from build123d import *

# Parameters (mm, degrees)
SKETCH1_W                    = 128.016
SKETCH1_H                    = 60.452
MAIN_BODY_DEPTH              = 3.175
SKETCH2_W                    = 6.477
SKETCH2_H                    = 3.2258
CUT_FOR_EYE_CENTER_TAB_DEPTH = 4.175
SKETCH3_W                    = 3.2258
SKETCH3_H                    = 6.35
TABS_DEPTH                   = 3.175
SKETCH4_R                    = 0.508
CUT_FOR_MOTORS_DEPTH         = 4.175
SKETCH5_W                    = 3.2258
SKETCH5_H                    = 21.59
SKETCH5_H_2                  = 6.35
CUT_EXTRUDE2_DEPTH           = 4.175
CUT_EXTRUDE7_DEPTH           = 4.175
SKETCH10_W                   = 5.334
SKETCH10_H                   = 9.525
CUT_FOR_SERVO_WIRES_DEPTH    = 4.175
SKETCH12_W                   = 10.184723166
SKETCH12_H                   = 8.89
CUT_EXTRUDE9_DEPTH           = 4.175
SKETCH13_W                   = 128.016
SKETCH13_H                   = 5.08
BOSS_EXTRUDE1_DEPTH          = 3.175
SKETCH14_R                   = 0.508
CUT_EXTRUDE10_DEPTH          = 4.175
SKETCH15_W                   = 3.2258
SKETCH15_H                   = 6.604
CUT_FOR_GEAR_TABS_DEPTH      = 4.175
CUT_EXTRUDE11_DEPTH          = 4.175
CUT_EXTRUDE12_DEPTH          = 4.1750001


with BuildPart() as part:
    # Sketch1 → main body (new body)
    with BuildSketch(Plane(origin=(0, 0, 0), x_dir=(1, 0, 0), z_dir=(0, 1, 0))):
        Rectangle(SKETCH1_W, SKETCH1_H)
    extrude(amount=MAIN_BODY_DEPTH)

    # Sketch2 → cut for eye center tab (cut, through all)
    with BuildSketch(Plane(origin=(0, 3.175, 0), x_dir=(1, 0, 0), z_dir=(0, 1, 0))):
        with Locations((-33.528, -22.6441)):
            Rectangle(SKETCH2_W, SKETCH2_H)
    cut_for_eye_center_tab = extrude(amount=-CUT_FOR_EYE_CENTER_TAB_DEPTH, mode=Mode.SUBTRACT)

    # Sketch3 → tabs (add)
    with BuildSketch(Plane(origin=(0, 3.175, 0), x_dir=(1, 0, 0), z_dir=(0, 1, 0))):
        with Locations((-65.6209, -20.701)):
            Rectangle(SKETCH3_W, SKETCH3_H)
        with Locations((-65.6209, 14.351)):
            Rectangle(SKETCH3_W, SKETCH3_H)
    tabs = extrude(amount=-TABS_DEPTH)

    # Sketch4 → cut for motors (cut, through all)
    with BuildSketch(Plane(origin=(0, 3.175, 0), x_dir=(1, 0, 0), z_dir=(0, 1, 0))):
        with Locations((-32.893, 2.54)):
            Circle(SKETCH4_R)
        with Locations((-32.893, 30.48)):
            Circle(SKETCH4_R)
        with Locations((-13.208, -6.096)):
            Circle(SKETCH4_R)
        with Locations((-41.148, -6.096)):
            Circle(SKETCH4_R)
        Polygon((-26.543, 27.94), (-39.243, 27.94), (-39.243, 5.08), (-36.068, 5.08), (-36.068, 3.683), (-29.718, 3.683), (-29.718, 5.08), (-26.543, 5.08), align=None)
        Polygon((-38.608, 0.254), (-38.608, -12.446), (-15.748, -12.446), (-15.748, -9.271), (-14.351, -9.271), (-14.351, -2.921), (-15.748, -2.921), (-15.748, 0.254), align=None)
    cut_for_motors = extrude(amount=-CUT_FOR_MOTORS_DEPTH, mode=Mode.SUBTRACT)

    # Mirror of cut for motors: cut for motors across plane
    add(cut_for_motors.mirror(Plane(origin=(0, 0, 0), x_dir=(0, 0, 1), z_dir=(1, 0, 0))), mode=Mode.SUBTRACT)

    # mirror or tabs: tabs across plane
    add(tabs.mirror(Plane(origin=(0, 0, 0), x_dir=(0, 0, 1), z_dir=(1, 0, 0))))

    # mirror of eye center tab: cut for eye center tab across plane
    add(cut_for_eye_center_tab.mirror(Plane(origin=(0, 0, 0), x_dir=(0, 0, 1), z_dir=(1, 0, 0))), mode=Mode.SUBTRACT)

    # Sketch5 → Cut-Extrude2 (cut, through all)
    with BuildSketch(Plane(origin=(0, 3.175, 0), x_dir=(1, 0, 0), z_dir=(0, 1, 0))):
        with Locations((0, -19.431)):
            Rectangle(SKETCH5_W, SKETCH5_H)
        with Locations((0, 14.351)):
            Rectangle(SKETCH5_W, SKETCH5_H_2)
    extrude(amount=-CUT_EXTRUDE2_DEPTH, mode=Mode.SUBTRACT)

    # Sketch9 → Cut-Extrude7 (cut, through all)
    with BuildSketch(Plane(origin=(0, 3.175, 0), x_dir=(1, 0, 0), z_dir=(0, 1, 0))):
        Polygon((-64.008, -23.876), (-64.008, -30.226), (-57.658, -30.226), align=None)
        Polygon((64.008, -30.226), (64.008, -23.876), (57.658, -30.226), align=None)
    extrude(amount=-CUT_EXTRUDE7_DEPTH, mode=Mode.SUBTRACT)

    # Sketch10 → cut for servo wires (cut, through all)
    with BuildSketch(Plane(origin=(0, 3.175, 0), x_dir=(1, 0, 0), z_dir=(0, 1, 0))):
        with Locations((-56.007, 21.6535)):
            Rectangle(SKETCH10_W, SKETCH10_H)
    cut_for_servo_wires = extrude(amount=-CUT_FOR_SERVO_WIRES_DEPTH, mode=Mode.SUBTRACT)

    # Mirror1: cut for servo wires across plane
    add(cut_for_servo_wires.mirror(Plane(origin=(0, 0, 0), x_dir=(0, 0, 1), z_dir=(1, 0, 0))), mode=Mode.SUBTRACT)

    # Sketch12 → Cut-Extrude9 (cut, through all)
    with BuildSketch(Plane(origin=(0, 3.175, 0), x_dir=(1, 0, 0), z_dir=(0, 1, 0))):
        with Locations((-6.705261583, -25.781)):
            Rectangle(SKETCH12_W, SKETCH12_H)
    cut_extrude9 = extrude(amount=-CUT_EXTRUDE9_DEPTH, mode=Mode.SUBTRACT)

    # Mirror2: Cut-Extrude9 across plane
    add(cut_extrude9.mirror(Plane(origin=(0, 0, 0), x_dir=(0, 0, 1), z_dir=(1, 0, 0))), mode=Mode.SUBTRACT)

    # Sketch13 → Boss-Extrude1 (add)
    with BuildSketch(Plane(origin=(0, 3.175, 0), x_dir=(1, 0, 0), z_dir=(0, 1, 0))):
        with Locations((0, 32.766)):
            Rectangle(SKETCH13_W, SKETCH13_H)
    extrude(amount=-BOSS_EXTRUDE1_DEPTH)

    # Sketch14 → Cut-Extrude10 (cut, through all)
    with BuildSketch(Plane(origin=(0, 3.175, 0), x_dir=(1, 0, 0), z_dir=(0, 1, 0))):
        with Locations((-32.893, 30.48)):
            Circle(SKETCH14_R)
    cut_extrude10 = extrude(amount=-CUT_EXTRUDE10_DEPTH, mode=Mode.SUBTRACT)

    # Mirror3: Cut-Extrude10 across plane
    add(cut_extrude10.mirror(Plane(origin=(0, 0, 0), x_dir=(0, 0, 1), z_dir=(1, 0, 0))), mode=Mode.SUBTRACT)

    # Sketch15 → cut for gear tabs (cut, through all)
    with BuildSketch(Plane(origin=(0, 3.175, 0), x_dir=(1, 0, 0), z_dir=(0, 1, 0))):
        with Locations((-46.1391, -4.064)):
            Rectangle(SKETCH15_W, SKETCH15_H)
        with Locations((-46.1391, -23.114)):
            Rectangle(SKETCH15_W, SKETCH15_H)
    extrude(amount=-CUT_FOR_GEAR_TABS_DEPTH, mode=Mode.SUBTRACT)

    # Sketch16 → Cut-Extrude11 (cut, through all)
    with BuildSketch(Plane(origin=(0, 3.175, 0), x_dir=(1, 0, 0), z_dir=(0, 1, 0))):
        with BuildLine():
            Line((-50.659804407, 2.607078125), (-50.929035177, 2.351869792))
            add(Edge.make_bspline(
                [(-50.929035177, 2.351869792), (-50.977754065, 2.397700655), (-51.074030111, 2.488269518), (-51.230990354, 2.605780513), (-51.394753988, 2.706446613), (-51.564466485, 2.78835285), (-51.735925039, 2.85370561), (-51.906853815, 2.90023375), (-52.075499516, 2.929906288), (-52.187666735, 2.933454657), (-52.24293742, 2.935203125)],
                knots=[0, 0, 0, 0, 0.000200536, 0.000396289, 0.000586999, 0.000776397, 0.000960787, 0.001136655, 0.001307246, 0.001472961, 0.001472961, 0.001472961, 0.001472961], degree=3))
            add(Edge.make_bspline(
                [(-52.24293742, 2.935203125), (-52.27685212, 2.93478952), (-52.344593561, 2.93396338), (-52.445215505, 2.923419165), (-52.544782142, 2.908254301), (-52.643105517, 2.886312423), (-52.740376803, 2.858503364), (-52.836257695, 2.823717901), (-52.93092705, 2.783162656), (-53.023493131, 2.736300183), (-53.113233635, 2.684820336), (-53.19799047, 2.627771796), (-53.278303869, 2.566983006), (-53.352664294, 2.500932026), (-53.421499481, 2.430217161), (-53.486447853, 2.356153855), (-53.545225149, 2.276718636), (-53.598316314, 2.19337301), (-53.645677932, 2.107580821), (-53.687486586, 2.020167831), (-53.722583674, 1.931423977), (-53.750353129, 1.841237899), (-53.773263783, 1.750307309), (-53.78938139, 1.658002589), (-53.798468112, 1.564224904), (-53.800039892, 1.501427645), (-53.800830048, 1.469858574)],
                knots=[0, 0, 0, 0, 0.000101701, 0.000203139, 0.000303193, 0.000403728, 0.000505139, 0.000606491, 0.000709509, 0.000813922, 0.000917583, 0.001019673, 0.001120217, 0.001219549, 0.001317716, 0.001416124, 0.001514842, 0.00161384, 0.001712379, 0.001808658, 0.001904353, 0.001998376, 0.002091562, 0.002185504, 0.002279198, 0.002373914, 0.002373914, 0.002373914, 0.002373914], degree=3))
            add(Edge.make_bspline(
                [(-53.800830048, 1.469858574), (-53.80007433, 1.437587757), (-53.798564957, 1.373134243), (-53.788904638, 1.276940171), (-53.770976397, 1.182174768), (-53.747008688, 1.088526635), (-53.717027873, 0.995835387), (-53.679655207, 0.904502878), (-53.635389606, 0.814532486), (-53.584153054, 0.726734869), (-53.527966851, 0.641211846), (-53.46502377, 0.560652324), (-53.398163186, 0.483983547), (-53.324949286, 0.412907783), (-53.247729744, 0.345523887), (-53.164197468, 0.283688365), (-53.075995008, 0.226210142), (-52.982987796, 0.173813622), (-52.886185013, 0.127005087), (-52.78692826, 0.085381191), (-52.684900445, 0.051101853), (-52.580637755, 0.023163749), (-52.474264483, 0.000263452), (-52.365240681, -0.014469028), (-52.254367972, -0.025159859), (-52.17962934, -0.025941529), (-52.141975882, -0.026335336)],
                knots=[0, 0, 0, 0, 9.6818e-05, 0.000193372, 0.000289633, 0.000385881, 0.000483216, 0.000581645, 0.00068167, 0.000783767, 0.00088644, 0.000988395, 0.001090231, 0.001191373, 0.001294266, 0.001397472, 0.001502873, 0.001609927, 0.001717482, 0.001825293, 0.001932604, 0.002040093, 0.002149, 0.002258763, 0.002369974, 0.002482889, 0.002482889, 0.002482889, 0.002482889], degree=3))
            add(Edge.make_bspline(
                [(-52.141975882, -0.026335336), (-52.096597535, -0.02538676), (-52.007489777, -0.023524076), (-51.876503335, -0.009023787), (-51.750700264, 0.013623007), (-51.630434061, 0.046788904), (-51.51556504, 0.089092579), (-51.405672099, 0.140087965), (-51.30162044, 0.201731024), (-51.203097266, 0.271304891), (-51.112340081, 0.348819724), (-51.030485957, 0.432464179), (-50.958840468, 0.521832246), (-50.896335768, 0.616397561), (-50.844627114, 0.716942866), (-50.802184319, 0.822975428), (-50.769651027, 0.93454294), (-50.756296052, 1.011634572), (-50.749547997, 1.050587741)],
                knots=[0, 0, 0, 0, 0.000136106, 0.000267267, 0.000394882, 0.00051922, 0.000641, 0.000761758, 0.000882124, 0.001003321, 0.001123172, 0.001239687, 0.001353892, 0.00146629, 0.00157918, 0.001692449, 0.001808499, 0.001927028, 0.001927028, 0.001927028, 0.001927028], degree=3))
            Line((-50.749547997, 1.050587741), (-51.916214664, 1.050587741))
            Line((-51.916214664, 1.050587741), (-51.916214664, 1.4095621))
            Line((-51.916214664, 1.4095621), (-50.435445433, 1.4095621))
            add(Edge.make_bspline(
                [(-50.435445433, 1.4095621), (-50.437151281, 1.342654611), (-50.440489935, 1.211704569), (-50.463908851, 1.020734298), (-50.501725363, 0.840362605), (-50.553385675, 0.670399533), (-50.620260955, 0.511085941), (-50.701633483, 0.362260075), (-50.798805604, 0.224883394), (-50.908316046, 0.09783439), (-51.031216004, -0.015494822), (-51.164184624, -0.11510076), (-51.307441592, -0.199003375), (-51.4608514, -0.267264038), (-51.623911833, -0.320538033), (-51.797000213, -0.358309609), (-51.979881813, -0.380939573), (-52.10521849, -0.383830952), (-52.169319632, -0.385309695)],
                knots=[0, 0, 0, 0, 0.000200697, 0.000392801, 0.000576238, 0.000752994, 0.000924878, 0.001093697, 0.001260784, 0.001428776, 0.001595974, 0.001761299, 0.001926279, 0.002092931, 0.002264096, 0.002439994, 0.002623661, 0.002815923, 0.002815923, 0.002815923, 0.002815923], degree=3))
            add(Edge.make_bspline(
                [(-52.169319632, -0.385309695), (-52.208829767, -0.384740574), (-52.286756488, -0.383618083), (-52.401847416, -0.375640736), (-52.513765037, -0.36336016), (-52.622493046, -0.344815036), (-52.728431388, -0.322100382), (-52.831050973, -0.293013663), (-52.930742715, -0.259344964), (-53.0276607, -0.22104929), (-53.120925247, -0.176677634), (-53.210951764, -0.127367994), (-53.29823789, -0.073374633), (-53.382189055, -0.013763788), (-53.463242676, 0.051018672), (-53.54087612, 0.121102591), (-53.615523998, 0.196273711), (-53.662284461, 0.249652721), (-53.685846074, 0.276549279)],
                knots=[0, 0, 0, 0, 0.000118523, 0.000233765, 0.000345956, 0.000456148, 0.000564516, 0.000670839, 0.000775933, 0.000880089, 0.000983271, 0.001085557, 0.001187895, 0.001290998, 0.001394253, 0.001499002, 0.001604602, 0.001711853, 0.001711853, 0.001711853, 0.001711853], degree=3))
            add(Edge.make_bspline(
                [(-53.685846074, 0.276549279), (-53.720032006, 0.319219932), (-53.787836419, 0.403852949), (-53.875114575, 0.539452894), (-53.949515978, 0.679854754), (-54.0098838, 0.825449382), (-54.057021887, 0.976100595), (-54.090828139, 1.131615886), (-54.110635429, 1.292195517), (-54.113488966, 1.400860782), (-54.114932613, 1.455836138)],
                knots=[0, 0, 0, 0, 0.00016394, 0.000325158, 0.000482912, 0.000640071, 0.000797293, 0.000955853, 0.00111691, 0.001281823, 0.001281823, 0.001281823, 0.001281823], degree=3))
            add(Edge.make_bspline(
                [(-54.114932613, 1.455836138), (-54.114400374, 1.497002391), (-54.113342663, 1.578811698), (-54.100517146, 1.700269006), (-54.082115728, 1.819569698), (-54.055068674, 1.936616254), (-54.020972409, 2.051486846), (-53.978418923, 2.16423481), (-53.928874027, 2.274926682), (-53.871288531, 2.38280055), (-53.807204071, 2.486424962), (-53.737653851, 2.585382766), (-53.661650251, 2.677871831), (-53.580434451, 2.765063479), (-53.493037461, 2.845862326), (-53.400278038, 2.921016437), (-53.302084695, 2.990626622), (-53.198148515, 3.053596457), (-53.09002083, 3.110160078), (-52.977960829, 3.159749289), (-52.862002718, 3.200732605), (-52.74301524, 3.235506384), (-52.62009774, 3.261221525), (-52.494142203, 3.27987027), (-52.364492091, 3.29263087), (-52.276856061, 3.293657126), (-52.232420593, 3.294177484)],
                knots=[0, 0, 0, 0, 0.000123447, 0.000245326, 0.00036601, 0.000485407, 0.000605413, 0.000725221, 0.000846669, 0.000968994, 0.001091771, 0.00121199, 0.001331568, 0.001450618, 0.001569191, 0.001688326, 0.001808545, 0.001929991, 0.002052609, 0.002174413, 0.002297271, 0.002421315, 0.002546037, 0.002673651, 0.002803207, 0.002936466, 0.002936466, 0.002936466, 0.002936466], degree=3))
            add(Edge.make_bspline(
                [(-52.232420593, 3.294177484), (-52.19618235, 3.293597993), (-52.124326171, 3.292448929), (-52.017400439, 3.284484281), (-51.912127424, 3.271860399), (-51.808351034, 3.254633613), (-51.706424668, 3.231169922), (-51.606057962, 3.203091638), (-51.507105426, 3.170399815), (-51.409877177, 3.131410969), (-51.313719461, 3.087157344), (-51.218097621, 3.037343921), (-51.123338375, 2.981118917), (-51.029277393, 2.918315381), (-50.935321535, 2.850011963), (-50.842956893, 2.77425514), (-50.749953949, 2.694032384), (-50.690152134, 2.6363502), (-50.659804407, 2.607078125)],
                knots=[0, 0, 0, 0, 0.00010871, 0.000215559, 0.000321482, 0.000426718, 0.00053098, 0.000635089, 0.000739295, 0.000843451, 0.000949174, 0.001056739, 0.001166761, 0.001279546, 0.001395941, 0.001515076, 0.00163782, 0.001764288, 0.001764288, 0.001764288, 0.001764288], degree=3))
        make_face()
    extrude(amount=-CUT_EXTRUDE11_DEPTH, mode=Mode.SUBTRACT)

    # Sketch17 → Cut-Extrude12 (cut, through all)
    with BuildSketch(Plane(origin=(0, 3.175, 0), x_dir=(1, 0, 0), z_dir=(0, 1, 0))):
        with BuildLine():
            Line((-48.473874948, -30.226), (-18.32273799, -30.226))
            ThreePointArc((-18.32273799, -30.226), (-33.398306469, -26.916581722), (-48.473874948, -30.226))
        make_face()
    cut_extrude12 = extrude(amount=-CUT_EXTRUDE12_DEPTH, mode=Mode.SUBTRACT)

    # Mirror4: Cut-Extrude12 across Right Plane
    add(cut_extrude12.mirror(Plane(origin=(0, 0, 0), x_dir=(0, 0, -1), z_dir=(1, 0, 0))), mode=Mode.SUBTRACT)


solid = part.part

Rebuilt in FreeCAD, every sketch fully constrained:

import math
import FreeCAD as App
import Part
import Sketcher
from FreeCAD import Vector
Q = App.Units.Quantity


def add_polygon(sketch, points):
    """Adds a closed chain of lines whose ends are joined by coincident constraints."""
    first, n = sketch.GeometryCount, len(points)
    for a, b in zip(points, points[1:] + points[:1]):
        sketch.addGeometry(Part.LineSegment(App.Vector(*a, 0), App.Vector(*b, 0)), False)
    for i in range(n):
        sketch.addConstraint(Sketcher.Constraint("Coincident", first + i, 2, first + (i + 1) % n, 1))

doc = App.newDocument("Part")
params = doc.addObject("Spreadsheet::Sheet", "Params")
for row, (alias, value) in enumerate([
    ("sketch1_width", "5.04 in"),
    ("sketch1_height", "2.38 in"),
    ("pad1_length", "0.125 in"),
    ("sketch2_width", "0.255 in"),
    ("sketch2_height", "0.127 in"),
    ("sketch3_height", "0.25 in"),
    ("sketch3_width", "0.127 in"),
    ("pad2_length", "0.125 in"),
    ("sketch4_diameter", "0.04 in"),
    ("sketch4_width", "0.5 in"),
    ("sketch4_width2", "0.9 in"),
    ("sketch4_width3", "0.25 in"),
    ("sketch4_width4", "0.055 in"),
    ("sketch5_height", "0.85 in"),
    ("sketch5_height2", "0.25 in"),
    ("sketch5_width", "0.127 in"),
    ("sketch6_width", "0.25 in"),
    ("sketch7_width", "0.21 in"),
    ("sketch7_height", "0.375 in"),
    ("sketch8_height", "0.35 in"),
    ("sketch9_height", "0.2 in"),
    ("sketch9_width", "5.04 in"),
    ("pad3_length", "0.125 in"),
    ("sketch10_diameter", "0.04 in"),
    ("sketch11_height", "0.26 in"),
    ("sketch11_width", "0.127 in"),
], start=1):
    params.set(f"A{row}", alias)
    params.set(f"B{row}", "=" + value)
    params.setAlias(f"B{row}", alias)

body = doc.addObject("PartDesign::Body", "Body")

sketch1 = body.newObject("Sketcher::SketchObject", "Sketch")
sketch1.AttachmentSupport = (doc.getObject("XZ_Plane"), [""])
sketch1.MapMode = "FlatFace"
add_polygon(sketch1, [(-64, -30), (-64, 30), (64, 30), (64, -30)])
sketch1.addConstraint(Sketcher.Constraint("Vertical", 0))
sketch1.addConstraint(Sketcher.Constraint("Horizontal", 1))
sketch1.addConstraint(Sketcher.Constraint("Vertical", 2))
sketch1.addConstraint(Sketcher.Constraint("Horizontal", 3))
sketch1.addConstraint(Sketcher.Constraint("Symmetric", 0, 2, 2, 2, -1, 1))
sketch1.addConstraint(Sketcher.Constraint("DistanceX", 1, 1, 1, 2, Q("5.04 in")))
sketch1.addConstraint(Sketcher.Constraint("DistanceY", 0, 1, 0, 2, Q("2.38 in")))
sketch1.setExpression("Constraints[9]", "Params.sketch1_width")
sketch1.setExpression("Constraints[10]", "Params.sketch1_height")
pad1 = body.newObject("PartDesign::Pad", "Pad")
pad1.Profile = sketch1
pad1.setExpression("Length", "Params.pad1_length")
pad1.Reversed = True

sketch2 = body.newObject("Sketcher::SketchObject", "Sketch001")
sketch2.AttachmentSupport = (doc.getObject("XZ_Plane"), [""])
sketch2.MapMode = "FlatFace"
sketch2.AttachmentOffset = App.Placement(Vector(0, 0, -0.125 * 25.4), App.Rotation())
add_polygon(sketch2, [(-36.8, 21), (-36.8, 24.3), (-30.3, 24.3), (-30.3, 21)])
sketch2.addConstraint(Sketcher.Constraint("Vertical", 0))
sketch2.addConstraint(Sketcher.Constraint("Horizontal", 1))
sketch2.addConstraint(Sketcher.Constraint("Vertical", 2))
sketch2.addConstraint(Sketcher.Constraint("Horizontal", 3))
sketch2.addConstraint(Sketcher.Constraint("DistanceX", 1, 1, 1, 2, Q("0.255 in")))
sketch2.addConstraint(Sketcher.Constraint("DistanceY", 0, 1, 0, 2, Q("0.127 in")))
sketch2.addConstraint(Sketcher.Constraint("DistanceY", -1, 1, 0, 2, Q("0.955 in")))
sketch2.addConstraint(Sketcher.Constraint("DistanceX", 0, 2, -1, 1, Q("1.4475 in")))
sketch2.setExpression("Constraints[8]", "Params.sketch2_width")
sketch2.setExpression("Constraints[9]", "Params.sketch2_height")
pocket1 = body.newObject("PartDesign::Pocket", "Pocket")
pocket1.Profile = sketch2
pocket1.Type = "ThroughAll"
pocket1.Reversed = True

sketch3 = body.newObject("Sketcher::SketchObject", "Sketch002")
sketch3.AttachmentSupport = (doc.getObject("XZ_Plane"), [""])
sketch3.MapMode = "FlatFace"
sketch3.AttachmentOffset = App.Placement(Vector(0, 0, -0.125 * 25.4), App.Rotation())
add_polygon(sketch3, [(-67.2, 17.5), (-67.2, 23.9), (-64, 23.9), (-64, 17.5)])
add_polygon(sketch3, [(-67.2, -17.5), (-67.2, -11.2), (-64, -11.2), (-64, -17.5)])
sketch3.addConstraint(Sketcher.Constraint("Vertical", 0))
sketch3.addConstraint(Sketcher.Constraint("Horizontal", 1))
sketch3.addConstraint(Sketcher.Constraint("Vertical", 2))
sketch3.addConstraint(Sketcher.Constraint("Horizontal", 3))
sketch3.addConstraint(Sketcher.Constraint("Vertical", 4))
sketch3.addConstraint(Sketcher.Constraint("Horizontal", 5))
sketch3.addConstraint(Sketcher.Constraint("Vertical", 6))
sketch3.addConstraint(Sketcher.Constraint("Horizontal", 7))
sketch3.addConstraint(Sketcher.Constraint("Symmetric", 2, 2, 6, 2, -1))
sketch3.addConstraint(Sketcher.Constraint("Vertical", 3, 2, 4, 2))
sketch3.addConstraint(Sketcher.Constraint("Equal", 2, 4))
sketch3.addConstraint(Sketcher.Constraint("DistanceY", 0, 1, 0, 2, Q("0.25 in")))
sketch3.addConstraint(Sketcher.Constraint("DistanceX", 1, 1, 1, 2, Q("0.127 in")))
sketch3.addConstraint(Sketcher.Constraint("DistanceY", -1, 1, 0, 2, Q("0.94 in")))
sketch3.addConstraint(Sketcher.Constraint("DistanceX", 1, 2, -1, 1, Q("2.52 in")))
sketch3.setExpression("Constraints[19]", "Params.sketch3_height")
sketch3.setExpression("Constraints[20]", "Params.sketch3_width")
pad2 = body.newObject("PartDesign::Pad", "Pad001")
pad2.Profile = sketch3
pad2.setExpression("Length", "Params.pad2_length")

sketch4 = body.newObject("Sketcher::SketchObject", "Sketch003")
sketch4.AttachmentSupport = (doc.getObject("XZ_Plane"), [""])
sketch4.MapMode = "FlatFace"
sketch4.AttachmentOffset = App.Placement(Vector(0, 0, -0.125 * 25.4), App.Rotation())
sketch4.addGeometry(Part.Circle(Vector(-32.9, -2.5, 0), Vector(0, 0, 1), 0.5), False)
sketch4.addGeometry(Part.Circle(Vector(-32.9, -30.5, 0), Vector(0, 0, 1), 0.5), False)
sketch4.addGeometry(Part.Circle(Vector(-13.2, 6.1, 0), Vector(0, 0, 1), 0.5), False)
sketch4.addGeometry(Part.Circle(Vector(-41.1, 6.1, 0), Vector(0, 0, 1), 0.5), False)
add_polygon(sketch4, [(-26.5, -27.9), (-39.2, -27.9), (-39.2, -5.1), (-36.1, -5.1), (-36.1, -3.7), (-29.7, -3.7), (-29.7, -5.1), (-26.5, -5.1)])
add_polygon(sketch4, [(-38.6, -0.3), (-38.6, 12.4), (-15.7, 12.4), (-15.7, 9.3), (-14.4, 9.3), (-14.4, 2.9), (-15.7, 2.9), (-15.7, -0.3)])
sketch4.addConstraint(Sketcher.Constraint("Horizontal", 4))
sketch4.addConstraint(Sketcher.Constraint("Vertical", 5))
sketch4.addConstraint(Sketcher.Constraint("Horizontal", 6))
sketch4.addConstraint(Sketcher.Constraint("Vertical", 7))
sketch4.addConstraint(Sketcher.Constraint("Horizontal", 8))
sketch4.addConstraint(Sketcher.Constraint("Vertical", 9))
sketch4.addConstraint(Sketcher.Constraint("Horizontal", 10))
sketch4.addConstraint(Sketcher.Constraint("Vertical", 11))
sketch4.addConstraint(Sketcher.Constraint("Vertical", 12))
sketch4.addConstraint(Sketcher.Constraint("Horizontal", 13))
sketch4.addConstraint(Sketcher.Constraint("Vertical", 14))
sketch4.addConstraint(Sketcher.Constraint("Horizontal", 15))
sketch4.addConstraint(Sketcher.Constraint("Vertical", 16))
sketch4.addConstraint(Sketcher.Constraint("Horizontal", 17))
sketch4.addConstraint(Sketcher.Constraint("Vertical", 18))
sketch4.addConstraint(Sketcher.Constraint("Horizontal", 19))
sketch4.addConstraint(Sketcher.Constraint("Equal", 0, 1))
sketch4.addConstraint(Sketcher.Constraint("Equal", 1, 2))
sketch4.addConstraint(Sketcher.Constraint("Equal", 2, 3))
sketch4.addConstraint(Sketcher.Constraint("Horizontal", 2, 3, 3, 3))
sketch4.addConstraint(Sketcher.Constraint("Horizontal", 6, 2, 9, 2))
sketch4.addConstraint(Sketcher.Constraint("Vertical", 0, 3, 1, 3))
sketch4.addConstraint(Sketcher.Constraint("Vertical", 14, 2, 17, 2))
sketch4.addConstraint(Sketcher.Constraint("Equal", 6, 10))
sketch4.addConstraint(Sketcher.Constraint("Equal", 19, 5))
sketch4.addConstraint(Sketcher.Constraint("Equal", 17, 7))
sketch4.addConstraint(Sketcher.Constraint("Equal", 4, 12))
sketch4.addConstraint(Sketcher.Constraint("Equal", 10, 14))
sketch4.addConstraint(Sketcher.Constraint("Equal", 8, 16))
sketch4.addConstraint(Sketcher.Constraint("Diameter", 0, Q("0.04 in")))
sketch4.addConstraint(Sketcher.Constraint("DistanceX", 4, 2, 4, 1, Q("0.5 in")))
sketch4.addConstraint(Sketcher.Constraint("DistanceX", 13, 1, 13, 2, Q("0.9 in")))
sketch4.addConstraint(Sketcher.Constraint("DistanceY", 4, 2, 0, 3, Q("1 in")))
sketch4.addConstraint(Sketcher.Constraint("DistanceY", 1, 3, 5, 2, Q("1 in")))
sketch4.addConstraint(Sketcher.Constraint("DistanceX", 8, 1, 8, 2, Q("0.25 in")))
sketch4.addConstraint(Sketcher.Constraint("DistanceY", 0, 3, -1, 1, Q("0.1 in")))
sketch4.addConstraint(Sketcher.Constraint("DistanceX", 3, 3, 2, 3, Q("1.1 in")))
sketch4.addConstraint(Sketcher.Constraint("DistanceX", 3, 3, 6, 2, Q("0.2 in")))
sketch4.addConstraint(Sketcher.Constraint("DistanceX", 3, 3, 12, 2, Q("0.1 in")))
sketch4.addConstraint(Sketcher.Constraint("DistanceX", 15, 1, 15, 2, Q("0.055 in")))
sketch4.addConstraint(Sketcher.Constraint("DistanceX", 2, 3, -1, 1, Q("0.52 in")))
sketch4.addConstraint(Sketcher.Constraint("DistanceY", -1, 1, 2, 3, Q("0.24 in")))
sketch4.addConstraint(Sketcher.Constraint("DistanceY", -1, 1, 12, 2, Q("0.49 in")))
sketch4.addConstraint(Sketcher.Constraint("DistanceX", 4, 2, 1, 3, Q("0.25 in")))
sketch4.setExpression("Constraints[45]", "Params.sketch4_diameter")
sketch4.setExpression("Constraints[46]", "Params.sketch4_width")
sketch4.setExpression("Constraints[47]", "Params.sketch4_width2")
sketch4.setExpression("Constraints[50]", "Params.sketch4_width3")
sketch4.setExpression("Constraints[55]", "Params.sketch4_width4")
pocket2 = body.newObject("PartDesign::Pocket", "Pocket001")
pocket2.Profile = sketch4
pocket2.Type = "ThroughAll"
pocket2.Reversed = True
doc.recompute()

mirrored = body.newObject("PartDesign::Mirrored", "Mirrored")
mirrored.Originals = [pocket2]
mirrored.MirrorPlane = (doc.getObject("YZ_Plane"), [""])
body.Tip = mirrored
doc.recompute()

mirrored2 = body.newObject("PartDesign::Mirrored", "Mirrored001")
mirrored2.Originals = [pad2]
mirrored2.MirrorPlane = (doc.getObject("YZ_Plane"), [""])
body.Tip = mirrored2
doc.recompute()

mirrored3 = body.newObject("PartDesign::Mirrored", "Mirrored002")
mirrored3.Originals = [pocket1]
mirrored3.MirrorPlane = (doc.getObject("YZ_Plane"), [""])
body.Tip = mirrored3

sketch5 = body.newObject("Sketcher::SketchObject", "Sketch004")
sketch5.AttachmentSupport = (doc.getObject("XZ_Plane"), [""])
sketch5.MapMode = "FlatFace"
sketch5.AttachmentOffset = App.Placement(Vector(0, 0, -0.125 * 25.4), App.Rotation())
add_polygon(sketch5, [(-1.6, 8.6), (-1.6, 30.2), (1.6, 30.2), (1.6, 8.6)])
add_polygon(sketch5, [(-1.6, -17.5), (-1.6, -11.2), (1.6, -11.2), (1.6, -17.5)])
sketch5.addConstraint(Sketcher.Constraint("Vertical", 0))
sketch5.addConstraint(Sketcher.Constraint("Horizontal", 1))
sketch5.addConstraint(Sketcher.Constraint("Vertical", 2))
sketch5.addConstraint(Sketcher.Constraint("Horizontal", 3))
sketch5.addConstraint(Sketcher.Constraint("Vertical", 4))
sketch5.addConstraint(Sketcher.Constraint("Horizontal", 5))
sketch5.addConstraint(Sketcher.Constraint("Vertical", 6))
sketch5.addConstraint(Sketcher.Constraint("Horizontal", 7))
sketch5.addConstraint(Sketcher.Constraint("Vertical", 3, 2, 4, 2))
sketch5.addConstraint(Sketcher.Constraint("Vertical", 2, 2, 5, 2))
sketch5.addConstraint(Sketcher.Constraint("DistanceY", 0, 1, 0, 2, Q("0.85 in")))
sketch5.addConstraint(Sketcher.Constraint("DistanceY", 4, 1, 4, 2, Q("0.25 in")))
sketch5.addConstraint(Sketcher.Constraint("DistanceX", 1, 1, 1, 2, Q("0.127 in")))
sketch5.addConstraint(Sketcher.Constraint("DistanceY", -1, 1, 0, 2, Q("1.19 in")))
sketch5.addConstraint(Sketcher.Constraint("DistanceY", 4, 2, -1, 1, Q("0.44 in")))
sketch5.addConstraint(Sketcher.Constraint("DistanceX", 0, 2, -1, 1, Q("0.0635 in")))
sketch5.setExpression("Constraints[18]", "Params.sketch5_height")
sketch5.setExpression("Constraints[19]", "Params.sketch5_height2")
sketch5.setExpression("Constraints[20]", "Params.sketch5_width")
pocket3 = body.newObject("PartDesign::Pocket", "Pocket002")
pocket3.Profile = sketch5
pocket3.Type = "ThroughAll"
pocket3.Reversed = True

sketch6 = body.newObject("Sketcher::SketchObject", "Sketch005")
sketch6.AttachmentSupport = (doc.getObject("XZ_Plane"), [""])
sketch6.MapMode = "FlatFace"
sketch6.AttachmentOffset = App.Placement(Vector(0, 0, -0.125 * 25.4), App.Rotation())
add_polygon(sketch6, [(-64, 24), (-64, 30), (-58, 30)])
add_polygon(sketch6, [(64, 30), (64, 24), (58, 30)])
sketch6.addConstraint(Sketcher.Constraint("Vertical", 0))
sketch6.addConstraint(Sketcher.Constraint("Horizontal", 1))
sketch6.addConstraint(Sketcher.Constraint("Vertical", 3))
sketch6.addConstraint(Sketcher.Constraint("Horizontal", 5))
sketch6.addConstraint(Sketcher.Constraint("Symmetric", 2, 2, 3, 2, -2))
sketch6.addConstraint(Sketcher.Constraint("Symmetric", 1, 2, 4, 2, -2))
sketch6.addConstraint(Sketcher.Constraint("Perpendicular", 2, 4))
sketch6.addConstraint(Sketcher.Constraint("DistanceX", 1, 1, 1, 2, Q("0.25 in")))
sketch6.addConstraint(Sketcher.Constraint("DistanceX", 0, 2, -1, 1, Q("2.52 in")))
sketch6.addConstraint(Sketcher.Constraint("DistanceY", -1, 1, 0, 2, Q("1.19 in")))
sketch6.setExpression("Constraints[13]", "Params.sketch6_width")
pocket4 = body.newObject("PartDesign::Pocket", "Pocket003")
pocket4.Profile = sketch6
pocket4.Type = "ThroughAll"
pocket4.Reversed = True

sketch7 = body.newObject("Sketcher::SketchObject", "Sketch006")
sketch7.AttachmentSupport = (doc.getObject("XZ_Plane"), [""])
sketch7.MapMode = "FlatFace"
sketch7.AttachmentOffset = App.Placement(Vector(0, 0, -0.125 * 25.4), App.Rotation())
add_polygon(sketch7, [(-59, -26), (-59, -17), (-53, -17), (-53, -26)])
sketch7.addConstraint(Sketcher.Constraint("Vertical", 0))
sketch7.addConstraint(Sketcher.Constraint("Horizontal", 1))
sketch7.addConstraint(Sketcher.Constraint("Vertical", 2))
sketch7.addConstraint(Sketcher.Constraint("Horizontal", 3))
sketch7.addConstraint(Sketcher.Constraint("DistanceX", 1, 1, 1, 2, Q("0.21 in")))
sketch7.addConstraint(Sketcher.Constraint("DistanceX", 1, 2, -1, 1, Q("2.1 in")))
sketch7.addConstraint(Sketcher.Constraint("DistanceY", 0, 1, 0, 2, Q("0.375 in")))
sketch7.addConstraint(Sketcher.Constraint("DistanceY", 2, 2, -1, 1, Q("1.04 in")))
sketch7.setExpression("Constraints[8]", "Params.sketch7_width")
sketch7.setExpression("Constraints[10]", "Params.sketch7_height")
pocket5 = body.newObject("PartDesign::Pocket", "Pocket004")
pocket5.Profile = sketch7
pocket5.Type = "ThroughAll"
pocket5.Reversed = True
doc.recompute()

mirrored4 = body.newObject("PartDesign::Mirrored", "Mirrored003")
mirrored4.Originals = [pocket5]
mirrored4.MirrorPlane = (doc.getObject("YZ_Plane"), [""])
body.Tip = mirrored4

sketch8 = body.newObject("Sketcher::SketchObject", "Sketch007")
sketch8.AttachmentSupport = (doc.getObject("XZ_Plane"), [""])
sketch8.MapMode = "FlatFace"
sketch8.AttachmentOffset = App.Placement(Vector(0, 0, -0.125 * 25.4), App.Rotation())
add_polygon(sketch8, [(-12, 21), (-12, 30), (-2, 30), (-2, 21)])
sketch8.addConstraint(Sketcher.Constraint("Vertical", 0))
sketch8.addConstraint(Sketcher.Constraint("Horizontal", 1))
sketch8.addConstraint(Sketcher.Constraint("Vertical", 2))
sketch8.addConstraint(Sketcher.Constraint("Horizontal", 3))
sketch8.addConstraint(Sketcher.Constraint("DistanceY", 0, 1, 0, 2, Q("0.35 in")))
sketch8.addConstraint(Sketcher.Constraint("DistanceY", -1, 1, 0, 2, Q("1.19 in")))
sketch8.addConstraint(Sketcher.Constraint("DistanceX", 1, 2, -1, 1, Q("0.0635 in")))
sketch8.addConstraint(Sketcher.Constraint("DistanceX", 1, 1, 1, 2, 10.184723))
sketch8.setExpression("Constraints[8]", "Params.sketch8_height")
pocket6 = body.newObject("PartDesign::Pocket", "Pocket005")
pocket6.Profile = sketch8
pocket6.Type = "ThroughAll"
pocket6.Reversed = True
doc.recompute()

mirrored5 = body.newObject("PartDesign::Mirrored", "Mirrored004")
mirrored5.Originals = [pocket6]
mirrored5.MirrorPlane = (doc.getObject("YZ_Plane"), [""])
body.Tip = mirrored5

sketch9 = body.newObject("Sketcher::SketchObject", "Sketch008")
sketch9.AttachmentSupport = (doc.getObject("XZ_Plane"), [""])
sketch9.MapMode = "FlatFace"
sketch9.AttachmentOffset = App.Placement(Vector(0, 0, -0.125 * 25.4), App.Rotation())
add_polygon(sketch9, [(-64, -35), (-64, -30), (64, -30), (64, -35)])
sketch9.addConstraint(Sketcher.Constraint("Vertical", 0))
sketch9.addConstraint(Sketcher.Constraint("Horizontal", 1))
sketch9.addConstraint(Sketcher.Constraint("Vertical", 2))
sketch9.addConstraint(Sketcher.Constraint("Horizontal", 3))
sketch9.addConstraint(Sketcher.Constraint("DistanceY", 0, 1, 0, 2, Q("0.2 in")))
sketch9.addConstraint(Sketcher.Constraint("DistanceX", 1, 1, 1, 2, Q("5.04 in")))
sketch9.addConstraint(Sketcher.Constraint("DistanceX", 0, 2, -1, 1, Q("2.52 in")))
sketch9.addConstraint(Sketcher.Constraint("DistanceY", 0, 2, -1, 1, Q("1.19 in")))
sketch9.setExpression("Constraints[8]", "Params.sketch9_height")
sketch9.setExpression("Constraints[9]", "Params.sketch9_width")
pad3 = body.newObject("PartDesign::Pad", "Pad002")
pad3.Profile = sketch9
pad3.setExpression("Length", "Params.pad3_length")

sketch10 = body.newObject("Sketcher::SketchObject", "Sketch009")
sketch10.AttachmentSupport = (doc.getObject("XZ_Plane"), [""])
sketch10.MapMode = "FlatFace"
sketch10.AttachmentOffset = App.Placement(Vector(0, 0, -0.125 * 25.4), App.Rotation())
sketch10.addGeometry(Part.Circle(Vector(-32.9, -30.5, 0), Vector(0, 0, 1), 0.5), False)
sketch10.addConstraint(Sketcher.Constraint("Diameter", 0, Q("0.04 in")))
sketch10.addConstraint(Sketcher.Constraint("DistanceY", 0, 3, -1, 1, Q("1.2 in")))
sketch10.addConstraint(Sketcher.Constraint("DistanceX", 0, 3, -1, 1, Q("1.295 in")))
sketch10.setExpression("Constraints[0]", "Params.sketch10_diameter")
pocket7 = body.newObject("PartDesign::Pocket", "Pocket006")
pocket7.Profile = sketch10
pocket7.Type = "ThroughAll"
pocket7.Reversed = True
doc.recompute()

mirrored6 = body.newObject("PartDesign::Mirrored", "Mirrored005")
mirrored6.Originals = [pocket7]
mirrored6.MirrorPlane = (doc.getObject("YZ_Plane"), [""])
body.Tip = mirrored6

sketch11 = body.newObject("Sketcher::SketchObject", "Sketch010")
sketch11.AttachmentSupport = (doc.getObject("XZ_Plane"), [""])
sketch11.MapMode = "FlatFace"
sketch11.AttachmentOffset = App.Placement(Vector(0, 0, -0.125 * 25.4), App.Rotation())
add_polygon(sketch11, [(-47.8, 0.8), (-47.8, 7.4), (-44.5, 7.4), (-44.5, 0.8)])
add_polygon(sketch11, [(-47.8, 19.8), (-47.8, 26.4), (-44.5, 26.4), (-44.5, 19.8)])
sketch11.addConstraint(Sketcher.Constraint("Vertical", 0))
sketch11.addConstraint(Sketcher.Constraint("Horizontal", 1))
sketch11.addConstraint(Sketcher.Constraint("Vertical", 2))
sketch11.addConstraint(Sketcher.Constraint("Horizontal", 3))
sketch11.addConstraint(Sketcher.Constraint("Vertical", 4))
sketch11.addConstraint(Sketcher.Constraint("Horizontal", 5))
sketch11.addConstraint(Sketcher.Constraint("Vertical", 6))
sketch11.addConstraint(Sketcher.Constraint("Horizontal", 7))
sketch11.addConstraint(Sketcher.Constraint("Vertical", 3, 2, 4, 2))
sketch11.addConstraint(Sketcher.Constraint("Vertical", 2, 2, 5, 2))
sketch11.addConstraint(Sketcher.Constraint("Equal", 2, 4))
sketch11.addConstraint(Sketcher.Constraint("DistanceY", 0, 1, 0, 2, Q("0.26 in")))
sketch11.addConstraint(Sketcher.Constraint("DistanceX", 1, 1, 1, 2, Q("0.127 in")))
sketch11.addConstraint(Sketcher.Constraint("DistanceX", 0, 2, -1, 1, Q("1.88 in")))
sketch11.addConstraint(Sketcher.Constraint("DistanceY", -1, 1, 0, 2, Q("0.29 in")))
sketch11.addConstraint(Sketcher.Constraint("DistanceY", -1, 1, 4, 2, Q("1.04 in")))
sketch11.setExpression("Constraints[19]", "Params.sketch11_height")
sketch11.setExpression("Constraints[20]", "Params.sketch11_width")
pocket8 = body.newObject("PartDesign::Pocket", "Pocket007")
pocket8.Profile = sketch11
pocket8.Type = "ThroughAll"
pocket8.Reversed = True

sketch12 = body.newObject("Sketcher::SketchObject", "Sketch011")
sketch12.AttachmentSupport = (doc.getObject("XZ_Plane"), [""])
sketch12.MapMode = "FlatFace"
sketch12.AttachmentOffset = App.Placement(Vector(0, 0, -0.125 * 25.4), App.Rotation())
sketch12.addGeometry(Part.LineSegment(Vector(-50.929035, -2.35187, 0), Vector(-50.659804, -2.607078, 0)), False)
sketch12.addGeometry(Part.BSplineCurve([Vector(-52.232421, -3.294177, 0), Vector(-52.196182, -3.293598, 0), Vector(-52.124326, -3.292449, 0), Vector(-52.0174, -3.284484, 0), Vector(-51.912127, -3.27186, 0), Vector(-51.808351, -3.254634, 0), Vector(-51.706425, -3.23117, 0), Vector(-51.606058, -3.203092, 0), Vector(-51.507105, -3.1704, 0), Vector(-51.409877, -3.131411, 0), Vector(-51.313719, -3.087157, 0), Vector(-51.218098, -3.037344, 0), Vector(-51.123338, -2.981119, 0), Vector(-51.029277, -2.918315, 0), Vector(-50.935322, -2.850012, 0), Vector(-50.842957, -2.774255, 0), Vector(-50.749954, -2.694032, 0), Vector(-50.690152, -2.63635, 0), Vector(-50.659804, -2.607078, 0)], [4, 1, 1, 1, 1, 1, 1, 1, 1, 1, 1, 1, 1, 1, 1, 1, 4], [0, 0.00010871, 0.000215559, 0.000321482, 0.000426718, 0.00053098, 0.000635089, 0.000739295, 0.000843451, 0.000949174, 0.001056739, 0.001166761, 0.001279546, 0.001395941, 0.001515076, 0.00163782, 0.001764288], False, 3, [1, 1, 1, 1, 1, 1, 1, 1, 1, 1, 1, 1, 1, 1, 1, 1, 1, 1, 1], False), False)
sketch12.addGeometry(Part.BSplineCurve([Vector(-54.114933, -1.455836, 0), Vector(-54.1144, -1.497002, 0), Vector(-54.113343, -1.578812, 0), Vector(-54.100517, -1.700269, 0), Vector(-54.082116, -1.81957, 0), Vector(-54.055069, -1.936616, 0), Vector(-54.020972, -2.051487, 0), Vector(-53.978419, -2.164235, 0), Vector(-53.928874, -2.274927, 0), Vector(-53.871289, -2.382801, 0), Vector(-53.807204, -2.486425, 0), Vector(-53.737654, -2.585383, 0), Vector(-53.66165, -2.677872, 0), Vector(-53.580434, -2.765063, 0), Vector(-53.493037, -2.845862, 0), Vector(-53.400278, -2.921016, 0), Vector(-53.302085, -2.990627, 0), Vector(-53.198149, -3.053596, 0), Vector(-53.090021, -3.11016, 0), Vector(-52.977961, -3.159749, 0), Vector(-52.862003, -3.200733, 0), Vector(-52.743015, -3.235506, 0), Vector(-52.620098, -3.261222, 0), Vector(-52.494142, -3.27987, 0), Vector(-52.364492, -3.292631, 0), Vector(-52.276856, -3.293657, 0), Vector(-52.232421, -3.294177, 0)], [4, 1, 1, 1, 1, 1, 1, 1, 1, 1, 1, 1, 1, 1, 1, 1, 1, 1, 1, 1, 1, 1, 1, 1, 4], [0, 0.000123447, 0.000245326, 0.00036601, 0.000485407, 0.000605413, 0.000725221, 0.000846669, 0.000968994, 0.001091771, 0.00121199, 0.001331568, 0.001450618, 0.001569191, 0.001688326, 0.001808545, 0.001929991, 0.002052609, 0.002174413, 0.002297271, 0.002421315, 0.002546037, 0.002673651, 0.002803207, 0.002936466], False, 3, [1, 1, 1, 1, 1, 1, 1, 1, 1, 1, 1, 1, 1, 1, 1, 1, 1, 1, 1, 1, 1, 1, 1, 1, 1, 1, 1], False), False)
sketch12.addGeometry(Part.BSplineCurve([Vector(-53.685846, -0.276549, 0), Vector(-53.720032, -0.31922, 0), Vector(-53.787836, -0.403853, 0), Vector(-53.875115, -0.539453, 0), Vector(-53.949516, -0.679855, 0), Vector(-54.009884, -0.825449, 0), Vector(-54.057022, -0.976101, 0), Vector(-54.090828, -1.131616, 0), Vector(-54.110635, -1.292196, 0), Vector(-54.113489, -1.400861, 0), Vector(-54.114933, -1.455836, 0)], [4, 1, 1, 1, 1, 1, 1, 1, 4], [0, 0.00016394, 0.000325158, 0.000482912, 0.000640071, 0.000797293, 0.000955853, 0.00111691, 0.001281823], False, 3, [1, 1, 1, 1, 1, 1, 1, 1, 1, 1, 1], False), False)
sketch12.addGeometry(Part.BSplineCurve([Vector(-52.16932, 0.38531, 0), Vector(-52.20883, 0.384741, 0), Vector(-52.286756, 0.383618, 0), Vector(-52.401847, 0.375641, 0), Vector(-52.513765, 0.36336, 0), Vector(-52.622493, 0.344815, 0), Vector(-52.728431, 0.3221, 0), Vector(-52.831051, 0.293014, 0), Vector(-52.930743, 0.259345, 0), Vector(-53.027661, 0.221049, 0), Vector(-53.120925, 0.176678, 0), Vector(-53.210952, 0.127368, 0), Vector(-53.298238, 0.073375, 0), Vector(-53.382189, 0.013764, 0), Vector(-53.463243, -0.051019, 0), Vector(-53.540876, -0.121103, 0), Vector(-53.615524, -0.196274, 0), Vector(-53.662284, -0.249653, 0), Vector(-53.685846, -0.276549, 0)], [4, 1, 1, 1, 1, 1, 1, 1, 1, 1, 1, 1, 1, 1, 1, 1, 4], [0, 0.000118523, 0.000233765, 0.000345956, 0.000456148, 0.000564516, 0.000670839, 0.000775933, 0.000880089, 0.000983271, 0.001085557, 0.001187895, 0.001290998, 0.001394253, 0.001499002, 0.001604602, 0.001711853], False, 3, [1, 1, 1, 1, 1, 1, 1, 1, 1, 1, 1, 1, 1, 1, 1, 1, 1, 1, 1], False), False)
sketch12.addGeometry(Part.BSplineCurve([Vector(-50.435445, -1.409562, 0), Vector(-50.437151, -1.342655, 0), Vector(-50.44049, -1.211705, 0), Vector(-50.463909, -1.020734, 0), Vector(-50.501725, -0.840363, 0), Vector(-50.553386, -0.6704, 0), Vector(-50.620261, -0.511086, 0), Vector(-50.701633, -0.36226, 0), Vector(-50.798806, -0.224883, 0), Vector(-50.908316, -0.097834, 0), Vector(-51.031216, 0.015495, 0), Vector(-51.164185, 0.115101, 0), Vector(-51.307442, 0.199003, 0), Vector(-51.460851, 0.267264, 0), Vector(-51.623912, 0.320538, 0), Vector(-51.797, 0.35831, 0), Vector(-51.979882, 0.38094, 0), Vector(-52.105218, 0.383831, 0), Vector(-52.16932, 0.38531, 0)], [4, 1, 1, 1, 1, 1, 1, 1, 1, 1, 1, 1, 1, 1, 1, 1, 4], [0, 0.000200697, 0.000392801, 0.000576238, 0.000752994, 0.000924878, 0.001093697, 0.001260784, 0.001428776, 0.001595974, 0.001761299, 0.001926279, 0.002092931, 0.002264096, 0.002439994, 0.002623661, 0.002815923], False, 3, [1, 1, 1, 1, 1, 1, 1, 1, 1, 1, 1, 1, 1, 1, 1, 1, 1, 1, 1], False), False)
sketch12.addGeometry(Part.LineSegment(Vector(-50.435445, -1.409562, 0), Vector(-51.916215, -1.409562, 0)), False)
sketch12.addGeometry(Part.LineSegment(Vector(-51.916215, -1.409562, 0), Vector(-51.916215, -1.050588, 0)), False)
sketch12.addGeometry(Part.LineSegment(Vector(-51.916215, -1.050588, 0), Vector(-50.749548, -1.050588, 0)), False)
sketch12.addGeometry(Part.BSplineCurve([Vector(-52.141976, 0.026335, 0), Vector(-52.096598, 0.025387, 0), Vector(-52.00749, 0.023524, 0), Vector(-51.876503, 0.009024, 0), Vector(-51.7507, -0.013623, 0), Vector(-51.630434, -0.046789, 0), Vector(-51.515565, -0.089093, 0), Vector(-51.405672, -0.140088, 0), Vector(-51.30162, -0.201731, 0), Vector(-51.203097, -0.271305, 0), Vector(-51.11234, -0.34882, 0), Vector(-51.030486, -0.432464, 0), Vector(-50.95884, -0.521832, 0), Vector(-50.896336, -0.616398, 0), Vector(-50.844627, -0.716943, 0), Vector(-50.802184, -0.822975, 0), Vector(-50.769651, -0.934543, 0), Vector(-50.756296, -1.011635, 0), Vector(-50.749548, -1.050588, 0)], [4, 1, 1, 1, 1, 1, 1, 1, 1, 1, 1, 1, 1, 1, 1, 1, 4], [0, 0.000136106, 0.000267267, 0.000394882, 0.00051922, 0.000641, 0.000761758, 0.000882124, 0.001003321, 0.001123172, 0.001239687, 0.001353892, 0.00146629, 0.00157918, 0.001692449, 0.001808499, 0.001927028], False, 3, [1, 1, 1, 1, 1, 1, 1, 1, 1, 1, 1, 1, 1, 1, 1, 1, 1, 1, 1], False), False)
sketch12.addGeometry(Part.BSplineCurve([Vector(-53.80083, -1.469859, 0), Vector(-53.800074, -1.437588, 0), Vector(-53.798565, -1.373134, 0), Vector(-53.788905, -1.27694, 0), Vector(-53.770976, -1.182175, 0), Vector(-53.747009, -1.088527, 0), Vector(-53.717028, -0.995835, 0), Vector(-53.679655, -0.904503, 0), Vector(-53.63539, -0.814532, 0), Vector(-53.584153, -0.726735, 0), Vector(-53.527967, -0.641212, 0), Vector(-53.465024, -0.560652, 0), Vector(-53.398163, -0.483984, 0), Vector(-53.324949, -0.412908, 0), Vector(-53.24773, -0.345524, 0), Vector(-53.164197, -0.283688, 0), Vector(-53.075995, -0.22621, 0), Vector(-52.982988, -0.173814, 0), Vector(-52.886185, -0.127005, 0), Vector(-52.786928, -0.085381, 0), Vector(-52.6849, -0.051102, 0), Vector(-52.580638, -0.023164, 0), Vector(-52.474264, -0.000263, 0), Vector(-52.365241, 0.014469, 0), Vector(-52.254368, 0.02516, 0), Vector(-52.179629, 0.025942, 0), Vector(-52.141976, 0.026335, 0)], [4, 1, 1, 1, 1, 1, 1, 1, 1, 1, 1, 1, 1, 1, 1, 1, 1, 1, 1, 1, 1, 1, 1, 1, 4], [0, 0.000096818, 0.000193372, 0.000289633, 0.000385881, 0.000483216, 0.000581645, 0.00068167, 0.000783767, 0.00088644, 0.000988395, 0.001090231, 0.001191373, 0.001294266, 0.001397472, 0.001502873, 0.001609927, 0.001717482, 0.001825293, 0.001932604, 0.002040093, 0.002149, 0.002258763, 0.002369974, 0.002482889], False, 3, [1, 1, 1, 1, 1, 1, 1, 1, 1, 1, 1, 1, 1, 1, 1, 1, 1, 1, 1, 1, 1, 1, 1, 1, 1, 1, 1], False), False)
sketch12.addGeometry(Part.BSplineCurve([Vector(-52.242937, -2.935203, 0), Vector(-52.276852, -2.93479, 0), Vector(-52.344594, -2.933963, 0), Vector(-52.445216, -2.923419, 0), Vector(-52.544782, -2.908254, 0), Vector(-52.643106, -2.886312, 0), Vector(-52.740377, -2.858503, 0), Vector(-52.836258, -2.823718, 0), Vector(-52.930927, -2.783163, 0), Vector(-53.023493, -2.7363, 0), Vector(-53.113234, -2.68482, 0), Vector(-53.19799, -2.627772, 0), Vector(-53.278304, -2.566983, 0), Vector(-53.352664, -2.500932, 0), Vector(-53.421499, -2.430217, 0), Vector(-53.486448, -2.356154, 0), Vector(-53.545225, -2.276719, 0), Vector(-53.598316, -2.193373, 0), Vector(-53.645678, -2.107581, 0), Vector(-53.687487, -2.020168, 0), Vector(-53.722584, -1.931424, 0), Vector(-53.750353, -1.841238, 0), Vector(-53.773264, -1.750307, 0), Vector(-53.789381, -1.658003, 0), Vector(-53.798468, -1.564225, 0), Vector(-53.80004, -1.501428, 0), Vector(-53.80083, -1.469859, 0)], [4, 1, 1, 1, 1, 1, 1, 1, 1, 1, 1, 1, 1, 1, 1, 1, 1, 1, 1, 1, 1, 1, 1, 1, 4], [0, 0.000101701, 0.000203139, 0.000303193, 0.000403728, 0.000505139, 0.000606491, 0.000709509, 0.000813922, 0.000917583, 0.001019673, 0.001120217, 0.001219549, 0.001317716, 0.001416124, 0.001514842, 0.00161384, 0.001712379, 0.001808658, 0.001904353, 0.001998376, 0.002091562, 0.002185504, 0.002279198, 0.002373914], False, 3, [1, 1, 1, 1, 1, 1, 1, 1, 1, 1, 1, 1, 1, 1, 1, 1, 1, 1, 1, 1, 1, 1, 1, 1, 1, 1, 1], False), False)
sketch12.addGeometry(Part.BSplineCurve([Vector(-50.929035, -2.35187, 0), Vector(-50.977754, -2.397701, 0), Vector(-51.07403, -2.48827, 0), Vector(-51.23099, -2.605781, 0), Vector(-51.394754, -2.706447, 0), Vector(-51.564466, -2.788353, 0), Vector(-51.735925, -2.853706, 0), Vector(-51.906854, -2.900234, 0), Vector(-52.0755, -2.929906, 0), Vector(-52.187667, -2.933455, 0), Vector(-52.242937, -2.935203, 0)], [4, 1, 1, 1, 1, 1, 1, 1, 4], [0, 0.000200536, 0.000396289, 0.000586999, 0.000776397, 0.000960787, 0.001136655, 0.001307246, 0.001472961], False, 3, [1, 1, 1, 1, 1, 1, 1, 1, 1, 1, 1], False), False)
sketch12.addConstraint(Sketcher.Constraint("Block", 1))
sketch12.addConstraint(Sketcher.Constraint("Block", 2))
sketch12.addConstraint(Sketcher.Constraint("Block", 3))
sketch12.addConstraint(Sketcher.Constraint("Block", 4))
sketch12.addConstraint(Sketcher.Constraint("Block", 5))
sketch12.addConstraint(Sketcher.Constraint("Block", 9))
sketch12.addConstraint(Sketcher.Constraint("Block", 10))
sketch12.addConstraint(Sketcher.Constraint("Block", 11))
sketch12.addConstraint(Sketcher.Constraint("Block", 12))
sketch12.addConstraint(Sketcher.Constraint("Coincident", 0, 2, 1, 2))
sketch12.addConstraint(Sketcher.Constraint("Coincident", 5, 1, 6, 1))
sketch12.addConstraint(Sketcher.Constraint("Coincident", 6, 2, 7, 1))
sketch12.addConstraint(Sketcher.Constraint("Coincident", 7, 2, 8, 1))
sketch12.addConstraint(Sketcher.Constraint("Coincident", 8, 2, 9, 2))
sketch12.addConstraint(Sketcher.Constraint("Coincident", 12, 1, 0, 1))
sketch12.addConstraint(Sketcher.Constraint("Horizontal", 6))
sketch12.addConstraint(Sketcher.Constraint("Vertical", 7))
sketch12.addConstraint(Sketcher.Constraint("Horizontal", 8))
sketch12.addConstraint(Sketcher.Constraint("DistanceX", 6, 2, 6, 1, 1.480769))
pocket9 = body.newObject("PartDesign::Pocket", "Pocket008")
pocket9.Profile = sketch12
pocket9.Type = "ThroughAll"
pocket9.Reversed = True

sketch13 = body.newObject("Sketcher::SketchObject", "Sketch012")
sketch13.AttachmentSupport = (doc.getObject("XZ_Plane"), [""])
sketch13.MapMode = "FlatFace"
sketch13.AttachmentOffset = App.Placement(Vector(0, 0, -0.125 * 25.4), App.Rotation())
sketch13.addGeometry(Part.LineSegment(Vector(-48, 30, 0), Vector(-18, 30, 0)), False)
sketch13.addGeometry(Part.ArcOfCircle(Part.Circle(Vector(-33, 63, 0), Vector(0, 0, 1), 36), math.radians(-115), math.radians(-65)), False)
sketch13.addConstraint(Sketcher.Constraint("Coincident", 0, 1, 1, 1))
sketch13.addConstraint(Sketcher.Constraint("Coincident", 1, 2, 0, 2))
sketch13.addConstraint(Sketcher.Constraint("Horizontal", 0))
sketch13.addConstraint(Sketcher.Constraint("DistanceY", -1, 1, 0, 1, Q("1.19 in")))
sketch13.addConstraint(Sketcher.Constraint("Radius", 1, 35.991977))
sketch13.addConstraint(Sketcher.Constraint("DistanceX", 0, 1, 0, 2, 30.151137))
sketch13.addConstraint(Sketcher.Constraint("DistanceX", 1, 3, -1, 1, 33.398306))
pocket10 = body.newObject("PartDesign::Pocket", "Pocket009")
pocket10.Profile = sketch13
pocket10.Type = "ThroughAll"
pocket10.Reversed = True
doc.recompute()

mirrored7 = body.newObject("PartDesign::Mirrored", "Mirrored006")
mirrored7.Originals = [pocket10]
mirrored7.MirrorPlane = (doc.getObject("YZ_Plane"), [""])
body.Tip = mirrored7

doc.recompute()
